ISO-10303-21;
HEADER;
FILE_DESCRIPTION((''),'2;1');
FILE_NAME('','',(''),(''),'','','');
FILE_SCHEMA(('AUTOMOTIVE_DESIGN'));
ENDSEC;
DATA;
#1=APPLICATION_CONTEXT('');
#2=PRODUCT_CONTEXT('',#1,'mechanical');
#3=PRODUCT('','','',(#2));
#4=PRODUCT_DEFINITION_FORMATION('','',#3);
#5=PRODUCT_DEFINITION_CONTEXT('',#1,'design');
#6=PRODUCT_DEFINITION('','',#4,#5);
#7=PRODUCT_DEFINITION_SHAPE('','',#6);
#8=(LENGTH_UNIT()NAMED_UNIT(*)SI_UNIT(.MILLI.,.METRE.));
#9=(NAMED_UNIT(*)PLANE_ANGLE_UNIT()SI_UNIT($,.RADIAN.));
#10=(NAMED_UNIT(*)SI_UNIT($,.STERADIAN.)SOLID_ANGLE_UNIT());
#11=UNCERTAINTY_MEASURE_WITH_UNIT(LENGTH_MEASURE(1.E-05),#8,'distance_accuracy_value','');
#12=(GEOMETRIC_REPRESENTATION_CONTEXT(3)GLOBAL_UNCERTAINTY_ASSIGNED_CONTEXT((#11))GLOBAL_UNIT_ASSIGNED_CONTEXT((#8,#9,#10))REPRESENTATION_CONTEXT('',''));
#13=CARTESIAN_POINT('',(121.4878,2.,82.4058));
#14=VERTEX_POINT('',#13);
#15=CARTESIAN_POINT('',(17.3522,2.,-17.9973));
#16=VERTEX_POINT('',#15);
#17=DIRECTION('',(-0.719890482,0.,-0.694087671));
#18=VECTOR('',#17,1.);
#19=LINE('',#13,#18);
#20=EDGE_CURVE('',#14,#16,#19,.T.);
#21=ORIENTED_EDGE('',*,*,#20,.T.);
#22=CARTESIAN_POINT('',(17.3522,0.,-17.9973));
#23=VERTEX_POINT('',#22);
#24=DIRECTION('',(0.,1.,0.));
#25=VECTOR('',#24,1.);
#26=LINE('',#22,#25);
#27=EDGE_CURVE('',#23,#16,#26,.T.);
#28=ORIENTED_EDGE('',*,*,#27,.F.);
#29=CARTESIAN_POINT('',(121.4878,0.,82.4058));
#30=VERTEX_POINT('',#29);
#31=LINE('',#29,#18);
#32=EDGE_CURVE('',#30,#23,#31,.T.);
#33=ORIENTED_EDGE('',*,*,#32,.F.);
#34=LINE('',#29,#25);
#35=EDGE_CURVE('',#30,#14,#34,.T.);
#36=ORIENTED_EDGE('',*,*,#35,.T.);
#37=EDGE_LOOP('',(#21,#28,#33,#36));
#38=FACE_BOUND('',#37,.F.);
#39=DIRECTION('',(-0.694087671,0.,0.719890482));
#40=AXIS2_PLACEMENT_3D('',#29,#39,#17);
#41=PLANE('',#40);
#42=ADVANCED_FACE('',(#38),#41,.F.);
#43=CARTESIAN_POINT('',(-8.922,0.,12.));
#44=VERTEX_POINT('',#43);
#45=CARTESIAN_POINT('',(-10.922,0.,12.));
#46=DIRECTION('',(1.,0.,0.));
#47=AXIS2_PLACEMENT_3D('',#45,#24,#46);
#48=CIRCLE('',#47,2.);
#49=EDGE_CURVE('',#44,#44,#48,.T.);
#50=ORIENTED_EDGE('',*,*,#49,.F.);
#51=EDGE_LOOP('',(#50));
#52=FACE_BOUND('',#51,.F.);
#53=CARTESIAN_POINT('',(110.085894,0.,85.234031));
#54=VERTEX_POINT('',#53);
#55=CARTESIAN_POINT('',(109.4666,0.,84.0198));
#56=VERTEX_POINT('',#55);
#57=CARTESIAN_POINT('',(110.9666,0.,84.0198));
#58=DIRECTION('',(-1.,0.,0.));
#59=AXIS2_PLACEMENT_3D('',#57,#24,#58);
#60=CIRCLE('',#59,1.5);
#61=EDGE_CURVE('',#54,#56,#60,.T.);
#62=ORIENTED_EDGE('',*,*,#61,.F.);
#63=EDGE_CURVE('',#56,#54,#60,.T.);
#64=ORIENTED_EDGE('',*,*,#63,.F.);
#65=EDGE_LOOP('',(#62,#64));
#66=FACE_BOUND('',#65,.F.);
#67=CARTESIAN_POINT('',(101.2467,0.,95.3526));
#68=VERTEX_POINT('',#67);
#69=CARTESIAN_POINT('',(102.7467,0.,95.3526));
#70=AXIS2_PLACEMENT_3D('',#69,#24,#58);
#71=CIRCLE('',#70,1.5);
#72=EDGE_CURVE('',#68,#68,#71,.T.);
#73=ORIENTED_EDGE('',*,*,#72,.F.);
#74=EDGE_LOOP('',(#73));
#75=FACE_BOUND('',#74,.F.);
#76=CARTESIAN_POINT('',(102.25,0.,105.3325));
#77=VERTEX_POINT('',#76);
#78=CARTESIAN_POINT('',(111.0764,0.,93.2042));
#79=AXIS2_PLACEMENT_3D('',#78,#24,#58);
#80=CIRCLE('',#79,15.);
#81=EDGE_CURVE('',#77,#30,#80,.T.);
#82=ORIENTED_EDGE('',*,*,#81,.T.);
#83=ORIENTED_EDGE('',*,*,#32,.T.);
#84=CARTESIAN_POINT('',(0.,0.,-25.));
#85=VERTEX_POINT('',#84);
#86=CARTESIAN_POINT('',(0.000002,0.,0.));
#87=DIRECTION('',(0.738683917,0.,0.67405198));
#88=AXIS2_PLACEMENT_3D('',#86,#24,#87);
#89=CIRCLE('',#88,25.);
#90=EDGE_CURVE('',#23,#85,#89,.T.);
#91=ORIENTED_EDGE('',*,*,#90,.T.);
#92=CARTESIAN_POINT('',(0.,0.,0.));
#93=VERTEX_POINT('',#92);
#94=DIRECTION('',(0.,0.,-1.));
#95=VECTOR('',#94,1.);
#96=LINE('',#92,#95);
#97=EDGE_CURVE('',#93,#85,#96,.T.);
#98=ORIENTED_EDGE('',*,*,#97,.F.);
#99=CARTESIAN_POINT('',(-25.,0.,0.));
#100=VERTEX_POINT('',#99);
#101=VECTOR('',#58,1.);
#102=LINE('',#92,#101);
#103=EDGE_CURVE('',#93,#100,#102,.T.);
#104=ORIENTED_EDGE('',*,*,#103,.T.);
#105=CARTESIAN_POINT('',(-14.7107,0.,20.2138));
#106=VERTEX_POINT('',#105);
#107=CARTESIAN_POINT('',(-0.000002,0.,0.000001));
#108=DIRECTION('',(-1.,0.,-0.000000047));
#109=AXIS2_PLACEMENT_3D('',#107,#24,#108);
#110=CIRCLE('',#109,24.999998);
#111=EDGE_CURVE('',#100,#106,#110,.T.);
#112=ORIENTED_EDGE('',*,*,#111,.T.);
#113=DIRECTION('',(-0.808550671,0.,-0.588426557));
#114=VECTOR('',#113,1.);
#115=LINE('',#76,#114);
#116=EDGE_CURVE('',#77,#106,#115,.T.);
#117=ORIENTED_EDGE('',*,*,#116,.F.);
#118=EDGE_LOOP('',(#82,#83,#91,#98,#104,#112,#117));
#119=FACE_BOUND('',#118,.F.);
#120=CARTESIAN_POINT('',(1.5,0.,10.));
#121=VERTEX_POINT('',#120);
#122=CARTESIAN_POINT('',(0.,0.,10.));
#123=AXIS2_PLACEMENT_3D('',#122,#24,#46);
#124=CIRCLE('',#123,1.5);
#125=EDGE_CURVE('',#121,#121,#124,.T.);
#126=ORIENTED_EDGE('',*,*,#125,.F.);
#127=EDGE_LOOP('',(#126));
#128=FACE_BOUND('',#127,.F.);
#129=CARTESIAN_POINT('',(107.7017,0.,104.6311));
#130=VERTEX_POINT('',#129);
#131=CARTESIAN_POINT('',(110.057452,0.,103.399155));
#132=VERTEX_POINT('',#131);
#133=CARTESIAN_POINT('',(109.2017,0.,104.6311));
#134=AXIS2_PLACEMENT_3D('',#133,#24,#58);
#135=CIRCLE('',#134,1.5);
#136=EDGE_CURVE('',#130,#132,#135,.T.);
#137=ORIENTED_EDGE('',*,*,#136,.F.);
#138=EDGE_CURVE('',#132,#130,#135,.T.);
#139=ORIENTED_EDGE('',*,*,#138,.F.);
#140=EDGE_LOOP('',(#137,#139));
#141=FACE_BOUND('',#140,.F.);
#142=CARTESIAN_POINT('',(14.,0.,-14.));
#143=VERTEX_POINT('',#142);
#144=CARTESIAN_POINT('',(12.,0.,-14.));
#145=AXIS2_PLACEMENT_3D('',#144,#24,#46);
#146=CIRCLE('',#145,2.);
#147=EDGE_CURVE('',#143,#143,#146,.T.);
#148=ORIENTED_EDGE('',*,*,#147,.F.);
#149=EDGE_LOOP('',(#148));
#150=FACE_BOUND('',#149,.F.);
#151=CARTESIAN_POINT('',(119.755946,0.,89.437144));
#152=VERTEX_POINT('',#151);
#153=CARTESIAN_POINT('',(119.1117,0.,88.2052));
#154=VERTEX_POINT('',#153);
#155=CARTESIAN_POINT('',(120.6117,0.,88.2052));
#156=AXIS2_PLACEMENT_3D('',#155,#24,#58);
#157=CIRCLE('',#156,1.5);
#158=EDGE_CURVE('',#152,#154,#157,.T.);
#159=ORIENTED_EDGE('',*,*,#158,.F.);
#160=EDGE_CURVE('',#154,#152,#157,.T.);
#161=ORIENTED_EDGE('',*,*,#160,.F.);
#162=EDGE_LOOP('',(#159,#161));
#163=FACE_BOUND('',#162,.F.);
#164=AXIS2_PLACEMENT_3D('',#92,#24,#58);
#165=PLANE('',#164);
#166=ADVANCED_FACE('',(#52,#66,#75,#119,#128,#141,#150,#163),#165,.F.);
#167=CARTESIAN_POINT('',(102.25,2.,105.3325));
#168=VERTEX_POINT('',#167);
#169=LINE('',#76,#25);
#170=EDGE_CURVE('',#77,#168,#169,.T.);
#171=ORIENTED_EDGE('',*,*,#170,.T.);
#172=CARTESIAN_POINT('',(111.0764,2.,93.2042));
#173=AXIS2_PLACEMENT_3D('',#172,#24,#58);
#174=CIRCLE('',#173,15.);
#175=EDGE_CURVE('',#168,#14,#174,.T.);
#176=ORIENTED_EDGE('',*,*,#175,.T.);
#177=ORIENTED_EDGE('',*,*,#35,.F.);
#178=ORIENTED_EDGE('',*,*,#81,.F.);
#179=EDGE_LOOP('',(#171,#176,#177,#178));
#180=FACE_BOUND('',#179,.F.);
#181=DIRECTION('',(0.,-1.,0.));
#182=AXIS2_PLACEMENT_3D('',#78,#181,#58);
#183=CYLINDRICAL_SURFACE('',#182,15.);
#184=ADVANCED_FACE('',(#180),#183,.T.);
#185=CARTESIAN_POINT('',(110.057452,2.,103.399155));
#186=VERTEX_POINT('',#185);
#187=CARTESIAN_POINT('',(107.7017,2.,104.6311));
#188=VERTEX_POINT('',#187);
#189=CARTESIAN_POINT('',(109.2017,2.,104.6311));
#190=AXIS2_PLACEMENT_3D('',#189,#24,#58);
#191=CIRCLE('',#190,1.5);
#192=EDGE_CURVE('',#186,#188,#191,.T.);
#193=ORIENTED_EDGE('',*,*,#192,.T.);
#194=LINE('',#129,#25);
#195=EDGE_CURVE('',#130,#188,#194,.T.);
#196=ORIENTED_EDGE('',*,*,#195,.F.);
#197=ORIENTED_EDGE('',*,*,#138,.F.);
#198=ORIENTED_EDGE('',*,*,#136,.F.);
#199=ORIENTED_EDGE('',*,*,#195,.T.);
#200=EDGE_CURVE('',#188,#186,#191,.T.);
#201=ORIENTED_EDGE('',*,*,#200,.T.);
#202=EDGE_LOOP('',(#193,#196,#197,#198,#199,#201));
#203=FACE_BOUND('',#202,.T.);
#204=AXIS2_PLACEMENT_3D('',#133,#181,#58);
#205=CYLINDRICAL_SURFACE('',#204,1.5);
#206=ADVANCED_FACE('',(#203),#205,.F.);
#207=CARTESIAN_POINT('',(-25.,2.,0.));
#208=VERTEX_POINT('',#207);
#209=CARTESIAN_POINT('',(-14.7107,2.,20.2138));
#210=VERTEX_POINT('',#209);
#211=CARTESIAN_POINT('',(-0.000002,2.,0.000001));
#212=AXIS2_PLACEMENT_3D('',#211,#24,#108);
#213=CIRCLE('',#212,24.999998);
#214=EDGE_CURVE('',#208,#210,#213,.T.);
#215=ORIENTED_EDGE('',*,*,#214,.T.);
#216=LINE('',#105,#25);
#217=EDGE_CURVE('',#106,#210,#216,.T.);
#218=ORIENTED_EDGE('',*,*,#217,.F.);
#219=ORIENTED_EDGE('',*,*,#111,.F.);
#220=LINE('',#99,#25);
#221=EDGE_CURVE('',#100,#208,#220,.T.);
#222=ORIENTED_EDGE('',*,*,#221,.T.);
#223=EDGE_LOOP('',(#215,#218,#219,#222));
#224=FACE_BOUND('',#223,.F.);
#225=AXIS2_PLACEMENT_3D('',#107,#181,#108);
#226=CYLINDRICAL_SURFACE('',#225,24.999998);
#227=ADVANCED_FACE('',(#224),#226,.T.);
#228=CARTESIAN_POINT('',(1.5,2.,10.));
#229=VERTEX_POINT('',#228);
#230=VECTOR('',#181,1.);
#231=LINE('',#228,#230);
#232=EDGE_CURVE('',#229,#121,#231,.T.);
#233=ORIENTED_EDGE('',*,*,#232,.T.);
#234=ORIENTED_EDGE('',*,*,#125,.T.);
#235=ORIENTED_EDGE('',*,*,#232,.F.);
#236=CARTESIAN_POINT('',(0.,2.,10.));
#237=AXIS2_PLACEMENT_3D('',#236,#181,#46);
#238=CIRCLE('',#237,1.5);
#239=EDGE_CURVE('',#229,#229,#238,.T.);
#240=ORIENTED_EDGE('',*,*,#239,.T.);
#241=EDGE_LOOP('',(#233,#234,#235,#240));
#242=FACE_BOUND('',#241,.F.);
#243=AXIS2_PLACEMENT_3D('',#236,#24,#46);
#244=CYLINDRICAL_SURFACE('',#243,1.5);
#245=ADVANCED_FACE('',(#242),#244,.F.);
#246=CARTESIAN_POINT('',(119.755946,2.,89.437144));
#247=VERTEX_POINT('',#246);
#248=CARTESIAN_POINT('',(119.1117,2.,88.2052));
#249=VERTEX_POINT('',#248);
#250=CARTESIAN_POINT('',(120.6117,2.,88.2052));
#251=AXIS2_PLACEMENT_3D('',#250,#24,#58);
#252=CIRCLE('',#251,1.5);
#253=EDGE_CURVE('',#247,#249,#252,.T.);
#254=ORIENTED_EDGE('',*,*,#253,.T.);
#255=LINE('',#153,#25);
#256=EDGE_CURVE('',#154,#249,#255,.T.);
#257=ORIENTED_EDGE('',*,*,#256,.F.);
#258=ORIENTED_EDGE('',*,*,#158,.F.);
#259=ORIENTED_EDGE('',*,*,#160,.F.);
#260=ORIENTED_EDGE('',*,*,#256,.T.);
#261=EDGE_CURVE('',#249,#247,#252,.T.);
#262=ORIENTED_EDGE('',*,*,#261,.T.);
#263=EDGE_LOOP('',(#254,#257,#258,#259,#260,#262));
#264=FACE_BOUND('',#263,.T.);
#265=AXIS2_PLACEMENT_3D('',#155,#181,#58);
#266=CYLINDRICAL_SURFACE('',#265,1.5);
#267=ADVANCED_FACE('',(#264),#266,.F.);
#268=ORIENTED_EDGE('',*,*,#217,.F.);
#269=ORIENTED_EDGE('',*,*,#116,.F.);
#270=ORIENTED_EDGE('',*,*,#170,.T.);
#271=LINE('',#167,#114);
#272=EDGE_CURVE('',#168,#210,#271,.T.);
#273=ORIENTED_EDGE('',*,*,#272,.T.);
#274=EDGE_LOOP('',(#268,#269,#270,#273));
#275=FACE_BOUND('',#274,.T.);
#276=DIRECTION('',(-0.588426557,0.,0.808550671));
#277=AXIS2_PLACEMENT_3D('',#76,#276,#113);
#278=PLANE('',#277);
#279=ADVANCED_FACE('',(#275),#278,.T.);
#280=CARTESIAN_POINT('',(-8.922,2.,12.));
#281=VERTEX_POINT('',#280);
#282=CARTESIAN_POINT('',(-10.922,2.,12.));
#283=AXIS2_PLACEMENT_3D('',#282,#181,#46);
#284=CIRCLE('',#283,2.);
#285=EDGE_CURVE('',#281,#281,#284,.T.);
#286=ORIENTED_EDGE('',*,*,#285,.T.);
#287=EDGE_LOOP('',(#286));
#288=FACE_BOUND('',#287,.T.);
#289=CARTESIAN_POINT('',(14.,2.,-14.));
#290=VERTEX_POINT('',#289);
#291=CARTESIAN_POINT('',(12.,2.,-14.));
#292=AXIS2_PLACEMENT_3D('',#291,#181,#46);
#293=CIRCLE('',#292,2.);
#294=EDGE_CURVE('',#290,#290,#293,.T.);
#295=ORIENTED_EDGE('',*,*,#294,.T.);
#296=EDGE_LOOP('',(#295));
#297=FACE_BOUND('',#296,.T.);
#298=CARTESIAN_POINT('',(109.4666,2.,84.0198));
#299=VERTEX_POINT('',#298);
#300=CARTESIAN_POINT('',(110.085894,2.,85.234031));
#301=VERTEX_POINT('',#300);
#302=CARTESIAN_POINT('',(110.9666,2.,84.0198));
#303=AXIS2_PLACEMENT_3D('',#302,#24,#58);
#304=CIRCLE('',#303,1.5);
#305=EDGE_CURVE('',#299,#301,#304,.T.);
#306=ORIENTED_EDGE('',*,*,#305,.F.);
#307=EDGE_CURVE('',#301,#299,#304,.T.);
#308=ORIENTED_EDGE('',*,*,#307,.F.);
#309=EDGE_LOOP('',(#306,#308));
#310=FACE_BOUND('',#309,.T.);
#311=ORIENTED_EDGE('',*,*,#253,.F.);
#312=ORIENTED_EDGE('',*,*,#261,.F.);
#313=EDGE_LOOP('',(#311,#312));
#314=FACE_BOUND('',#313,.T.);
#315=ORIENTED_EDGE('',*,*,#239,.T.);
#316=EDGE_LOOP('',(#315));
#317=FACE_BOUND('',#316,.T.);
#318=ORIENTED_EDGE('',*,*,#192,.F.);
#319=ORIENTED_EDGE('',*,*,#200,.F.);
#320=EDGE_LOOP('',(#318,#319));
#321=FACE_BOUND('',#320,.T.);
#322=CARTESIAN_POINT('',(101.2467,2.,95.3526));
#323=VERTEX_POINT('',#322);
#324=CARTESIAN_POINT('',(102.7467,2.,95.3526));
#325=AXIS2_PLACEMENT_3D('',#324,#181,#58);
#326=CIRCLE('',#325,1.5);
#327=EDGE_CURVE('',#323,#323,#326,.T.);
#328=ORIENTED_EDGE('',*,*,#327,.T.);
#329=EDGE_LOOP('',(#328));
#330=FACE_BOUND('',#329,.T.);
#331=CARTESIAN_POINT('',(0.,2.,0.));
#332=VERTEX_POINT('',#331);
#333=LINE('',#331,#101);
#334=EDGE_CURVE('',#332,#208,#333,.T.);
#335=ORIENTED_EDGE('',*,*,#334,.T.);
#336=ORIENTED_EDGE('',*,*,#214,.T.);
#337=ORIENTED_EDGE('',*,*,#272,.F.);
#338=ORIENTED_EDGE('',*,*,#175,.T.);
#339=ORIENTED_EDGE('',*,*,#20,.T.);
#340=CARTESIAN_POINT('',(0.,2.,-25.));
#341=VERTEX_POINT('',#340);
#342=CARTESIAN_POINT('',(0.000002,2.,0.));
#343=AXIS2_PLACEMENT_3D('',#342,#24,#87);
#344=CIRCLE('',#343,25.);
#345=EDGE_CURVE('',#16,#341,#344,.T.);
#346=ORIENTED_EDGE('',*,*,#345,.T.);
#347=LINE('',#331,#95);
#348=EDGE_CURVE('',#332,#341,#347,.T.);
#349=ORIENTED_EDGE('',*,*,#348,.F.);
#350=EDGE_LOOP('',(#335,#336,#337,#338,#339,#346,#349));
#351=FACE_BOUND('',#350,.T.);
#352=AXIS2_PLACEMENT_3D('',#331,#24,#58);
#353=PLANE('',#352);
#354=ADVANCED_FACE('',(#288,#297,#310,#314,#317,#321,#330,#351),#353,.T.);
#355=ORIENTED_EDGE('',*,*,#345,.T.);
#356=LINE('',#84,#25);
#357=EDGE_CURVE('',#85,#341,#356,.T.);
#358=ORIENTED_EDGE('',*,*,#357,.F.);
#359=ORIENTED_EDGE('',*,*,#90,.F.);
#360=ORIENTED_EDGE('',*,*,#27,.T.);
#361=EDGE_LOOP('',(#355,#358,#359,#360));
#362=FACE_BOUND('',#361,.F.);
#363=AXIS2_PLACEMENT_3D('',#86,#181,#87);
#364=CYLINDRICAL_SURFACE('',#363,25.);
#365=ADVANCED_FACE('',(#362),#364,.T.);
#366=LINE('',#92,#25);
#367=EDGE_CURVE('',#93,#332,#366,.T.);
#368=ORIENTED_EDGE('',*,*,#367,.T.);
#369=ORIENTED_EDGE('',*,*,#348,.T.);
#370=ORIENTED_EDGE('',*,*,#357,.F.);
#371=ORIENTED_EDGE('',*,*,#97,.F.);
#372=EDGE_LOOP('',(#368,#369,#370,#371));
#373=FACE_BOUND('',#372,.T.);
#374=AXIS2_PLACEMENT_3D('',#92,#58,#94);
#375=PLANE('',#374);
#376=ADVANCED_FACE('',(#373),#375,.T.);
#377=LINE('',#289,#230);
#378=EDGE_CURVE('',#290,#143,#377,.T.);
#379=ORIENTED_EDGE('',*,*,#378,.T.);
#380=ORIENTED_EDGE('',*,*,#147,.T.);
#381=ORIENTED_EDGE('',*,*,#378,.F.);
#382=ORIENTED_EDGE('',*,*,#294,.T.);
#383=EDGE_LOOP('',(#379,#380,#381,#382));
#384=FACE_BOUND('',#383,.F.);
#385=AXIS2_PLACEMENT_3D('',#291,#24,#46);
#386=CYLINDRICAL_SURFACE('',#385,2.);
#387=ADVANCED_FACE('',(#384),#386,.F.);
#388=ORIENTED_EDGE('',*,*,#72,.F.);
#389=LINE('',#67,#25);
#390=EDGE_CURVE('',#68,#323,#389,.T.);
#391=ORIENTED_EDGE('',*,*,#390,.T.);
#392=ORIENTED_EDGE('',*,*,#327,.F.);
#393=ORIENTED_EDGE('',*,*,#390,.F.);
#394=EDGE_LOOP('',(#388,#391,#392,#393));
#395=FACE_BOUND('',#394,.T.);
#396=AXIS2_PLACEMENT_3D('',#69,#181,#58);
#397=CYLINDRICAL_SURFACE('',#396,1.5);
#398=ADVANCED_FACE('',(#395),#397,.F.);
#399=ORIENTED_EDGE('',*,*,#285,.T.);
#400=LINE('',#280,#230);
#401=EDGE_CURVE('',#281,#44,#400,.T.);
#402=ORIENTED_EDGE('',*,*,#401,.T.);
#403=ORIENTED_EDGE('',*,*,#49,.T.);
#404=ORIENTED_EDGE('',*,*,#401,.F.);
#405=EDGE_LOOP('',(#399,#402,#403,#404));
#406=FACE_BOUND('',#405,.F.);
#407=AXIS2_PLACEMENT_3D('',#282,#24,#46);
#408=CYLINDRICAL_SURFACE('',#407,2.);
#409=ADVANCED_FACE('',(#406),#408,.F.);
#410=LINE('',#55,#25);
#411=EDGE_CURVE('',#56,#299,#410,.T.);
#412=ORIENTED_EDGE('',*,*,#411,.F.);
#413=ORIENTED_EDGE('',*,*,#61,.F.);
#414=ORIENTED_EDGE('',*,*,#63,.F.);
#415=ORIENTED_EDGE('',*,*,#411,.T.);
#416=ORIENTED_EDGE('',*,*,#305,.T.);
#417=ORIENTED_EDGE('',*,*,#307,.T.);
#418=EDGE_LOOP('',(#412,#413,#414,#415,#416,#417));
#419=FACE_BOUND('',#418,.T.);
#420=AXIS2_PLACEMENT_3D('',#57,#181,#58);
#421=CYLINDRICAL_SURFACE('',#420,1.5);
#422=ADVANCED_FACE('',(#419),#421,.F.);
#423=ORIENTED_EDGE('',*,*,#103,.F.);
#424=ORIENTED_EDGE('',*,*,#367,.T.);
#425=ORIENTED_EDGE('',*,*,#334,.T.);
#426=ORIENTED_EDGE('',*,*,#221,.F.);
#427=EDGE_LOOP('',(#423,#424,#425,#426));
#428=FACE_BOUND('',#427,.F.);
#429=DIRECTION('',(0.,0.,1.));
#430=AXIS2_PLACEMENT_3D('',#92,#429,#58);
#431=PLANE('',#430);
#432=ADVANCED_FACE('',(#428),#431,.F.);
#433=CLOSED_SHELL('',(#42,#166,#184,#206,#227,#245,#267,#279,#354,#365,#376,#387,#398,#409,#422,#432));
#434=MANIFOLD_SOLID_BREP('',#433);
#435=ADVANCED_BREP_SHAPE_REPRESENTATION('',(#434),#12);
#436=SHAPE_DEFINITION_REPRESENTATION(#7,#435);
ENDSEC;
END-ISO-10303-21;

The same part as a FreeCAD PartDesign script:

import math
import FreeCAD as App
import Part
import Sketcher

V = App.Vector
Q = App.Units.Quantity

doc = App.newDocument("Part")
body = doc.addObject("PartDesign::Body", "Body")

# Sketch on XZ plane
sketch1 = body.newObject("Sketcher::SketchObject", "Sketch")
sketch1.AttachmentSupport = (doc.getObject("XZ_Plane"), [""])
sketch1.MapMode = "FlatFace"
sketch1.addGeometry([
    Part.ArcOfCircle(Part.Circle(V(0, 0, 0), V(0, 0, 1), 25), math.radians(126), math.radians(180)),  # 0
    Part.LineSegment(V(-14.7, 20.2, 0), V(102.2, 105.3, 0)),  # 1
    Part.ArcOfCircle(Part.Circle(V(111.1, 93.2, 0), V(0, 0, 1), 15), math.radians(-46), math.radians(126)),  # 2
    Part.LineSegment(V(121.5, 82.4, 0), V(17.4, -18, 0)),  # 3
    Part.ArcOfCircle(Part.Circle(V(0, 0, 0), V(0, 0, 1), 25), math.radians(-90), math.radians(-46)),  # 4
    Part.LineSegment(V(0, -25, 0), V(0, 0, 0)),  # 5
    Part.LineSegment(V(0, 0, 0), V(-25, 0, 0)),  # 6
    Part.Circle(V(120.6, 88.2, 0), V(0, 0, 1), 1.5),  # 7
    Part.Circle(V(111, 84, 0), V(0, 0, 1), 1.5),  # 8
    Part.Circle(V(109.2, 104.6, 0), V(0, 0, 1), 1.5),  # 9
    Part.Circle(V(102.7, 95.4, 0), V(0, 0, 1), 1.5),  # 10
], False)
sketch1.addConstraint([
    Sketcher.Constraint("Tangent", 0, 1, 1, 1),
    Sketcher.Constraint("Tangent", 1, 2, 2, 2),
    Sketcher.Constraint("Tangent", 2, 1, 3, 1),
    Sketcher.Constraint("Tangent", 3, 2, 4, 2),
    Sketcher.Constraint("Coincident", 4, 1, 5, 1),
    Sketcher.Constraint("Coincident", 5, 2, 6, 1),
    Sketcher.Constraint("Coincident", 6, 2, 0, 2),
    Sketcher.Constraint("Vertical", 5),
    Sketcher.Constraint("Horizontal", 6),
    Sketcher.Constraint("Coincident", 0, 3, -1, 1),
    Sketcher.Constraint("Coincident", 4, 3, -1, 1),
    Sketcher.Constraint("Coincident", 5, 2, -1, 1),
    Sketcher.Constraint("Equal", 0, 4),
    Sketcher.Constraint("Equal", 7, 8),
    Sketcher.Constraint("Equal", 8, 9),
    Sketcher.Constraint("Equal", 9, 10),
    Sketcher.Constraint("Diameter", 7, Q("3 mm")),
    Sketcher.Constraint("Radius", 0, Q("25 mm")),
    Sketcher.Constraint("Radius", 2, Q("15 mm")),
    Sketcher.Constraint("DistanceX", -1, 1, 1, 2, Q("102.25 mm")),
    Sketcher.Constraint("DistanceX", 9, 3, 7, 3, Q("11.41 mm")),
    Sketcher.Constraint("DistanceX", 10, 3, 8, 3, Q("8.22 mm")),
    Sketcher.Constraint("DistanceY", 10, 3, 1, 2, Q("9.98 mm")),
    Sketcher.Constraint("DistanceY", 3, 2, 10, 3, Q("113.35 mm")),
    Sketcher.Constraint("DistanceY", -1, 1, 9, 3, Q("104.631 mm")),
    Sketcher.Constraint("DistanceY", 7, 3, 2, 3, Q("4.999 mm")),
    Sketcher.Constraint("DistanceX", 8, 3, 7, 3, Q("9.645 mm")),
    Sketcher.Constraint("DistanceY", 0, 1, 8, 3, Q("63.806 mm")),
    Sketcher.Constraint("DistanceX", 7, 3, 2, 1, Q("0.876 mm")),
])
pad1 = body.newObject("PartDesign::Pad", "Pad")
pad1.Profile = sketch1
pad1.Length = 2
pad1.Reversed = True

# Sketch on XZ plane
sketch2 = body.newObject("Sketcher::SketchObject", "Sketch001")
sketch2.AttachmentSupport = (doc.getObject("XZ_Plane"), [""])
sketch2.MapMode = "FlatFace"
sketch2.AttachmentOffset = App.Placement(V(0, 0, -2), App.Rotation())
sketch2.addGeometry(Part.Circle(V(12, -14, 0), V(0, 0, 1), 2), False)
sketch2.addConstraint([
    Sketcher.Constraint("Diameter", 0, Q("4 mm")),
    Sketcher.Constraint("DistanceX", -1, 1, 0, 3, Q("12 mm")),
    Sketcher.Constraint("DistanceY", 0, 3, -1, 1, Q("14 mm")),
])
pocket1 = body.newObject("PartDesign::Pocket", "Pocket")
pocket1.Profile = sketch2
pocket1.Length = 2
pocket1.Reversed = True

# Sketch on XZ plane
sketch3 = body.newObject("Sketcher::SketchObject", "Sketch002")
sketch3.AttachmentSupport = (doc.getObject("XZ_Plane"), [""])
sketch3.MapMode = "FlatFace"
sketch3.AttachmentOffset = App.Placement(V(0, 0, -2), App.Rotation())
sketch3.addGeometry(Part.Circle(V(-10.9, 12, 0), V(0, 0, 1), 2), False)
sketch3.addConstraint([
    Sketcher.Constraint("Diameter", 0, Q("4 mm")),
    Sketcher.Constraint("DistanceY", -1, 1, 0, 3, Q("12 mm")),
    Sketcher.Constraint("DistanceX", 0, 3, -1, 1, Q("10.922 mm")),
])
pocket2 = body.newObject("PartDesign::Pocket", "Pocket001")
pocket2.Profile = sketch3
pocket2.Length = 2
pocket2.Reversed = True

# Sketch on XZ plane
sketch4 = body.newObject("Sketcher::SketchObject", "Sketch003")
sketch4.AttachmentSupport = (doc.getObject("XZ_Plane"), [""])
sketch4.MapMode = "FlatFace"
sketch4.AttachmentOffset = App.Placement(V(0, 0, -2), App.Rotation())
sketch4.addGeometry(Part.Circle(V(0, 10, 0), V(0, 0, 1), 1.5), False)
sketch4.addConstraint([
    Sketcher.Constraint("PointOnObject", 0, 3, -2),
    Sketcher.Constraint("Diameter", 0, Q("3 mm")),
    Sketcher.Constraint("DistanceY", -1, 1, 0, 3, Q("10 mm")),
])
pocket3 = body.newObject("PartDesign::Pocket", "Pocket002")
pocket3.Profile = sketch4
pocket3.Length = 2
pocket3.Reversed = True

doc.recompute()
